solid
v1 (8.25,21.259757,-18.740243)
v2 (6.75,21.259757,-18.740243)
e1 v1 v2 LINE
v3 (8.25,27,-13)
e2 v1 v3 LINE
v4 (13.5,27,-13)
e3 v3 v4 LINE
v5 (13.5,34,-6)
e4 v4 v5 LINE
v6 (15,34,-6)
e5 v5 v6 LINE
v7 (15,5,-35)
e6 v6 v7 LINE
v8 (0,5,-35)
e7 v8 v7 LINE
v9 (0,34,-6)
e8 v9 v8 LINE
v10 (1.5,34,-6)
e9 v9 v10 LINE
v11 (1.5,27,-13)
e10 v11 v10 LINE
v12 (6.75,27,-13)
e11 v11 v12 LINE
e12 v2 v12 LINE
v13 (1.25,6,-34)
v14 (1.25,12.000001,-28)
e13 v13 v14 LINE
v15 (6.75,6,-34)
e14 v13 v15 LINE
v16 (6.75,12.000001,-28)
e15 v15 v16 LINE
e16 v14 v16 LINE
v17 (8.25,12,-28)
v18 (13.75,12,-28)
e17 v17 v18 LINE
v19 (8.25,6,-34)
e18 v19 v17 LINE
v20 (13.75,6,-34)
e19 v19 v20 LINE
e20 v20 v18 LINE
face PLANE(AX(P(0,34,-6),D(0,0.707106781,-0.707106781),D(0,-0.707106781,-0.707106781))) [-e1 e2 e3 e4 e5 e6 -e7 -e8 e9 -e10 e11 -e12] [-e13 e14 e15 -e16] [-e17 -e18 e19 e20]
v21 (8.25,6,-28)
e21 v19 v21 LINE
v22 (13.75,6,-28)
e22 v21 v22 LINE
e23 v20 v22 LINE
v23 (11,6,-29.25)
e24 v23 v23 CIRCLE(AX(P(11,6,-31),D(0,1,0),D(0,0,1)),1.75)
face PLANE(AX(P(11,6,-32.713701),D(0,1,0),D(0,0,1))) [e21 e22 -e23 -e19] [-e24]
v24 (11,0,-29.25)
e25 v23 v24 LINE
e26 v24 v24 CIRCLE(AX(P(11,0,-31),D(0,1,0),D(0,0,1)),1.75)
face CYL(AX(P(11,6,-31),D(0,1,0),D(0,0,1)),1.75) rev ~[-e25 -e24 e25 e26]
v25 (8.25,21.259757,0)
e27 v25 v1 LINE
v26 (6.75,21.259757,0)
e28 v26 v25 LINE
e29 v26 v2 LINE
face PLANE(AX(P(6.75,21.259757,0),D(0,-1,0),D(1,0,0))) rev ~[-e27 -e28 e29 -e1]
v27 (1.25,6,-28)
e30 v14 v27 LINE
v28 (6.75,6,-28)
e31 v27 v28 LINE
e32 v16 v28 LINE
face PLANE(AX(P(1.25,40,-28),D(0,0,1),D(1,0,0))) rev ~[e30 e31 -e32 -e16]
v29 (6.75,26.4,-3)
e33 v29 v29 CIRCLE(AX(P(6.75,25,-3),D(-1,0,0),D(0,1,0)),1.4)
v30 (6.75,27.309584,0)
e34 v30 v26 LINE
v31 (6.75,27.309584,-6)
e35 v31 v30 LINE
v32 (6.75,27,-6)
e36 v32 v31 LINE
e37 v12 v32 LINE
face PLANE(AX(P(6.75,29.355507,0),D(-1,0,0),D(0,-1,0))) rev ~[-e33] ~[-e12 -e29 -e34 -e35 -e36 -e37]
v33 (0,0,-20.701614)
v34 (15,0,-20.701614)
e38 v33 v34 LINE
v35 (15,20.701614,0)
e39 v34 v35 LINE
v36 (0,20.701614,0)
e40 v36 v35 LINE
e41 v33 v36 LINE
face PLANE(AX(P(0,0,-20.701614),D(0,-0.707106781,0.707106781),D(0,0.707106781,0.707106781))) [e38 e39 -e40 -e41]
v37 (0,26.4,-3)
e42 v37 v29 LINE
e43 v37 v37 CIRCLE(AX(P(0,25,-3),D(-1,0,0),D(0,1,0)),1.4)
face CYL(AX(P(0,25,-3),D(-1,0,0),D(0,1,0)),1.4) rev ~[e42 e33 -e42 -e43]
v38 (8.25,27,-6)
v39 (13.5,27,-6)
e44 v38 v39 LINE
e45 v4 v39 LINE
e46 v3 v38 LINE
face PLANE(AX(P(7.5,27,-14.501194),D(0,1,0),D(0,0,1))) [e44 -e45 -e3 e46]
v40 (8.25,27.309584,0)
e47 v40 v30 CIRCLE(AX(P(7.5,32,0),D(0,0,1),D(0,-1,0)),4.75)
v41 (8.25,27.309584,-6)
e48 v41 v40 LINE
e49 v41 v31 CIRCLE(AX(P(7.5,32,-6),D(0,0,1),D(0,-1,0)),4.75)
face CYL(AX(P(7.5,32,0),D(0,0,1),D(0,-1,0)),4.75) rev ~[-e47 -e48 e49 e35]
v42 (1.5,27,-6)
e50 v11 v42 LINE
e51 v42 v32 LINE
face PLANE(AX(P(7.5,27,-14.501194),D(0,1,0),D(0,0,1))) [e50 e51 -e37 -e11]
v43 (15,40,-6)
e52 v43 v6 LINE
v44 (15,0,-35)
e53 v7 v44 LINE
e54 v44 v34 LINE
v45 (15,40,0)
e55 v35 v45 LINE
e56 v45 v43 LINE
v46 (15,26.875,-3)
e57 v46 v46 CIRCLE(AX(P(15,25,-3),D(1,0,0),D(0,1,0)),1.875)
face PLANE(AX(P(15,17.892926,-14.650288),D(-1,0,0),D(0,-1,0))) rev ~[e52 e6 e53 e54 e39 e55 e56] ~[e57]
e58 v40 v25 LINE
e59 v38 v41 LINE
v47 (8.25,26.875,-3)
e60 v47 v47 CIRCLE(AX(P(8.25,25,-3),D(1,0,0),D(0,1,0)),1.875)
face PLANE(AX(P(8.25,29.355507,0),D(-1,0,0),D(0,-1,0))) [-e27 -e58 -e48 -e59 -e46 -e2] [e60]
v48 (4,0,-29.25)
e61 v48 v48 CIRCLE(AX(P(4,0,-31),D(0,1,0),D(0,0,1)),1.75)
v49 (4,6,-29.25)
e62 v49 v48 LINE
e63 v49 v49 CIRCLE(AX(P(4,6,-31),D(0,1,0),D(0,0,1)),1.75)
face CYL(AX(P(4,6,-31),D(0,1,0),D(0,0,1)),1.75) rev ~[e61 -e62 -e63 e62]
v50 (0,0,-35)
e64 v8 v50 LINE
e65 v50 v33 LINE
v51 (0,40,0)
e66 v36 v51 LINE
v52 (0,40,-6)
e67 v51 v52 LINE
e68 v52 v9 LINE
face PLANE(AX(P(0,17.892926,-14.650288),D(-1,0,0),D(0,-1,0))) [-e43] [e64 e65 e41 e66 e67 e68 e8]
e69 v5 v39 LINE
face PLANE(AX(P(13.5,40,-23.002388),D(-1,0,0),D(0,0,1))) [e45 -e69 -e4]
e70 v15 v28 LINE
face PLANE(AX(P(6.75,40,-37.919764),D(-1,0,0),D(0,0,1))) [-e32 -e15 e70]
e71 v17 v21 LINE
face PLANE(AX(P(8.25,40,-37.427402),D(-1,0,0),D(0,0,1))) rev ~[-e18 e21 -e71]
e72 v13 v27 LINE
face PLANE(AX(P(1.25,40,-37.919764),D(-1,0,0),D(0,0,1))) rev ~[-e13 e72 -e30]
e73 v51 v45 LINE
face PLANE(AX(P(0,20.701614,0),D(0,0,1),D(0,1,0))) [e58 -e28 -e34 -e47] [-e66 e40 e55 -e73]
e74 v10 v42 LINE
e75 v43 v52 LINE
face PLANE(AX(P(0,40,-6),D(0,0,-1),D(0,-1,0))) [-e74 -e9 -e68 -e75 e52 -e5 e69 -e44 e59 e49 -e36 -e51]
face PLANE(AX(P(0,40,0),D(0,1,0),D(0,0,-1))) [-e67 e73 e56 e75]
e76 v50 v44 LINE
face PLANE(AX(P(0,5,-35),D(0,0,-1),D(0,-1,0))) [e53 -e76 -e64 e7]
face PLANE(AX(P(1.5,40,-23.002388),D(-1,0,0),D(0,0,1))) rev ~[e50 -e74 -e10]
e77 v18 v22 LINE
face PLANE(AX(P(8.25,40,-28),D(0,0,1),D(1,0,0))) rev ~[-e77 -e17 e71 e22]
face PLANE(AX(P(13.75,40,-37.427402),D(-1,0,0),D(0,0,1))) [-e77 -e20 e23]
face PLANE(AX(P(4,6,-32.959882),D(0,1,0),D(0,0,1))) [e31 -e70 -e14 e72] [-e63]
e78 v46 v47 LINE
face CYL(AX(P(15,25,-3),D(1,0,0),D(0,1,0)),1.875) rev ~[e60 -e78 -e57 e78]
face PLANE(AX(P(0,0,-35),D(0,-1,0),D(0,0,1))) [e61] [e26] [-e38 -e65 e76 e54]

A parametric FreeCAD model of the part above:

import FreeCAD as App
import Part
import Sketcher
Q = App.Units.Quantity


def add_polygon(sketch, points):
    """Adds a closed chain of lines whose ends are joined by coincident constraints."""
    first, n = sketch.GeometryCount, len(points)
    for a, b in zip(points, points[1:] + points[:1]):
        sketch.addGeometry(Part.LineSegment(App.Vector(*a, 0), App.Vector(*b, 0)), False)
    for i in range(n):
        sketch.addConstraint(Sketcher.Constraint("Coincident", first + i, 2, first + (i + 1) % n, 1))

doc = App.newDocument("Part")
body = doc.addObject("PartDesign::Body", "Body")

# Sketch on YZ plane
sketch1 = doc.addObject("Sketcher::SketchObject", "Sketch")
body.addObject(sketch1)
sketch1.AttachmentSupport = (doc.YZ_Plane, [""])
sketch1.MapMode = "FlatFace"
add_polygon(sketch1, [(40, 0), (21, 0), (0, -21), (0, -35), (5, -35), (34, -6), (40, -6)])  # lines 0-6
sketch1.addConstraint([
    Sketcher.Constraint("Horizontal", 0),
    Sketcher.Constraint("Vertical", 2),
    Sketcher.Constraint("Horizontal", 3),
    Sketcher.Constraint("Horizontal", 5),
    Sketcher.Constraint("Vertical", 6),
    Sketcher.Constraint("PointOnObject", 0, 2, -1),
    Sketcher.Constraint("PointOnObject", 1, 2, -2),
    Sketcher.Constraint("Parallel", 1, 4),
    Sketcher.Constraint("Equal", 5, 6),
    Sketcher.Constraint("DistanceX", 3, 1, 3, 2, 5.0),
    Sketcher.Constraint("DistanceX", 5, 1, 5, 2, 6.0),
    Sketcher.Constraint("Angle", 1, Q("-135 deg")),
    Sketcher.Constraint("DistanceY", 2, 2, -1, 1, 35.0),
    Sketcher.Constraint("DistanceX", 0, 2, 0, 1, 19.298386),
])
pad1 = doc.addObject("PartDesign::Pad", "Pad")
body.addObject(pad1)
pad1.Profile = sketch1
pad1.Length = 15

# Sketch on an angled plane
sketch2 = doc.addObject("Sketcher::SketchObject", "Sketch001")
body.addObject(sketch2)
sketch2.Placement = App.Placement(App.Vector(0, 20, -20), App.Rotation(App.Vector(0, 0.707106781, 0.707106781), App.Vector(0.999999999, 0, 0), App.Vector(0, 0.707106781, -0.707106781), "ZXY"))
sketch2.addGeometry(Part.Circle(App.Vector(-32, 7.5, 0), App.Vector(0, 0, 1), 4.7), False)
sketch2.addConstraint([
    Sketcher.Constraint("Diameter", 0, 9.45),
    Sketcher.Constraint("DistanceX", 0, 3, -1, 1, 32.0),
    Sketcher.Constraint("DistanceY", -1, 1, 0, 3, 7.5),
])
pocket1 = doc.addObject("PartDesign::Pocket", "Pocket")
body.addObject(pocket1)
pocket1.Profile = sketch2
pocket1.Type = "ThroughAll"

# Sketch on YZ plane
sketch3 = doc.addObject("Sketcher::SketchObject", "Sketch002")
body.addObject(sketch3)
sketch3.AttachmentSupport = (doc.YZ_Plane, [""])
sketch3.MapMode = "FlatFace"
add_polygon(sketch3, [(-28.6, -8.5), (-28.6, -6.5), (-15.1, -6.5), (-15.1, -8.5)])  # lines 0-3
sketch3.addConstraint([
    Sketcher.Constraint("Vertical", 0),
    Sketcher.Constraint("Horizontal", 1),
    Sketcher.Constraint("Vertical", 2),
    Sketcher.Constraint("Horizontal", 3),
    Sketcher.Constraint("DistanceY", 0, 1, 0, 2, 2.0),
    Sketcher.Constraint("DistanceY", 0, 2, -1, 1, 6.5),
    Sketcher.Constraint("DistanceX", 1, 1, 1, 2, 13.497765),
    Sketcher.Constraint("DistanceX", 1, 2, -1, 1, 15.07364),
])
pocket2 = doc.addObject("PartDesign::Pocket", "Pocket001")
body.addObject(pocket2)
pocket2.Profile = sketch3
pocket2.Type = "ThroughAll"
pocket2.Reversed = True

# Sketch on XZ plane
sketch4 = doc.addObject("Sketcher::SketchObject", "Sketch003")
body.addObject(sketch4)
sketch4.AttachmentSupport = (doc.XZ_Plane, [""])
sketch4.MapMode = "FlatFace"
sketch4.AttachmentOffset = App.Placement(App.Vector(0, 0, -40), App.Rotation())
add_polygon(sketch4, [(7, -38), (1, -38), (1, -28), (7, -28)])  # lines 0-3
add_polygon(sketch4, [(14, -37), (8, -37), (8, -28), (14, -28)])  # lines 4-7
sketch4.addConstraint([
    Sketcher.Constraint("Horizontal", 0),
    Sketcher.Constraint("Vertical", 1),
    Sketcher.Constraint("Horizontal", 2),
    Sketcher.Constraint("Vertical", 3),
    Sketcher.Constraint("Horizontal", 4),
    Sketcher.Constraint("Vertical", 5),
    Sketcher.Constraint("Horizontal", 6),
    Sketcher.Constraint("Vertical", 7),
    Sketcher.Constraint("Horizontal", 2, 2, 5, 2),
    Sketcher.Constraint("Equal", 2, 4),
    Sketcher.Constraint("DistanceX", 0, 2, 0, 1, 5.5),
    Sketcher.Constraint("DistanceY", 1, 2, -1, 1, 28.0),
    Sketcher.Constraint("DistanceX", 0, 2, 4, 2, 7.0),
    Sketcher.Constraint("DistanceX", -1, 1, 0, 2, 1.25),
    Sketcher.Constraint("DistanceY", 1, 1, 1, 2, 9.919765),
    Sketcher.Constraint("DistanceY", 5, 1, 5, 2, 9.427402),
])
pocket3 = doc.addObject("PartDesign::Pocket", "Pocket002")
body.addObject(pocket3)
pocket3.Profile = sketch4
pocket3.Length = 34
pocket3.Reversed = True

# Sketch on XZ plane
sketch5 = doc.addObject("Sketcher::SketchObject", "Sketch004")
body.addObject(sketch5)
sketch5.AttachmentSupport = (doc.XZ_Plane, [""])
sketch5.MapMode = "FlatFace"
sketch5.AttachmentOffset = App.Placement(App.Vector(0, 0, -40), App.Rotation())
add_polygon(sketch5, [(14, -23), (2, -23), (2, -6), (14, -6)])  # lines 0-3
sketch5.addConstraint([
    Sketcher.Constraint("Horizontal", 0),
    Sketcher.Constraint("Vertical", 1),
    Sketcher.Constraint("Horizontal", 2),
    Sketcher.Constraint("Vertical", 3),
    Sketcher.Constraint("DistanceX", 0, 2, 0, 1, 12.0),
    Sketcher.Constraint("DistanceY", 1, 2, -1, 1, 6.0),
    Sketcher.Constraint("DistanceX", -1, 1, 0, 2, 1.5),
    Sketcher.Constraint("DistanceY", 1, 1, 1, 2, 17.002388),
])
pocket4 = doc.addObject("PartDesign::Pocket", "Pocket003")
body.addObject(pocket4)
pocket4.Profile = sketch5
pocket4.Length = 13
pocket4.Reversed = True

# Sketch on XY plane
sketch6 = doc.addObject("Sketcher::SketchObject", "Sketch005")
body.addObject(sketch6)
sketch6.AttachmentSupport = (doc.XY_Plane, [""])
sketch6.MapMode = "FlatFace"
sketch6.addGeometry(Part.Circle(App.Vector(7.5, 32, 0), App.Vector(0, 0, 1), 4.8), False)
sketch6.addConstraint([
    Sketcher.Constraint("Diameter", 0, 9.5),
    Sketcher.Constraint("DistanceY", -1, 1, 0, 3, 32.0),
    Sketcher.Constraint("DistanceX", -1, 1, 0, 3, 7.5),
])
pocket5 = doc.addObject("PartDesign::Pocket", "Pocket004")
body.addObject(pocket5)
pocket5.Profile = sketch6
pocket5.Type = "ThroughAll"

# Sketch on XY plane
sketch7 = doc.addObject("Sketcher::SketchObject", "Sketch006")
body.addObject(sketch7)
sketch7.AttachmentSupport = (doc.XY_Plane, [""])
sketch7.MapMode = "FlatFace"
add_polygon(sketch7, [(8.2, 29.4), (6.8, 29.4), (6.8, 21.3), (8.2, 21.3)])  # lines 0-3
sketch7.addConstraint([
    Sketcher.Constraint("Horizontal", 0),
    Sketcher.Constraint("Vertical", 1),
    Sketcher.Constraint("Horizontal", 2),
    Sketcher.Constraint("Vertical", 3),
    Sketcher.Constraint("DistanceX", 0, 2, 0, 1, 1.5),
    Sketcher.Constraint("DistanceX", -1, 1, 0, 2, 6.75),
    Sketcher.Constraint("DistanceY", 1, 2, 1, 1, 8.09575),
    Sketcher.Constraint("DistanceY", -1, 1, 0, 2, 29.355507),
])
pocket6 = doc.addObject("PartDesign::Pocket", "Pocket005")
body.addObject(pocket6)
pocket6.Profile = sketch7
pocket6.Type = "ThroughAll"

# Sketch on YZ plane
sketch8 = doc.addObject("Sketcher::SketchObject", "Sketch007")
body.addObject(sketch8)
sketch8.AttachmentSupport = (doc.YZ_Plane, [""])
sketch8.MapMode = "FlatFace"
sketch8.addGeometry(Part.Circle(App.Vector(25, -3, 0), App.Vector(0, 0, 1), 1.4), False)
sketch8.addConstraint([
    Sketcher.Constraint("Diameter", 0, 2.8),
    Sketcher.Constraint("DistanceX", -1, 1, 0, 3, 25.0),
    Sketcher.Constraint("DistanceY", 0, 3, -1, 1, 3.0),
])
pocket7 = doc.addObject("PartDesign::Pocket", "Pocket006")
body.addObject(pocket7)
pocket7.Profile = sketch8
pocket7.Type = "ThroughAll"
pocket7.Reversed = True

# Sketch on YZ plane
sketch9 = doc.addObject("Sketcher::SketchObject", "Sketch008")
body.addObject(sketch9)
sketch9.AttachmentSupport = (doc.YZ_Plane, [""])
sketch9.MapMode = "FlatFace"
sketch9.addGeometry(Part.Circle(App.Vector(25, -3, 0), App.Vector(0, 0, 1), 1.4), False)
sketch9.addConstraint([
    Sketcher.Constraint("Diameter", 0, 2.8),
    Sketcher.Constraint("DistanceX", -1, 1, 0, 3, 25.0),
    Sketcher.Constraint("DistanceY", 0, 3, -1, 1, 3.0),
])
pocket8 = doc.addObject("PartDesign::Pocket", "Pocket007")
body.addObject(pocket8)
pocket8.Profile = sketch9
pocket8.Length = 8
pocket8.Reversed = True

# Sketch on XZ plane
sketch10 = doc.addObject("Sketcher::SketchObject", "Sketch009")
body.addObject(sketch10)
sketch10.AttachmentSupport = (doc.XZ_Plane, [""])
sketch10.MapMode = "FlatFace"
sketch10.AttachmentOffset = App.Placement(App.Vector(0, 0, -6), App.Rotation())
sketch10.addGeometry([
    Part.Circle(App.Vector(11, -31, 0), App.Vector(0, 0, 1), 1.8),
    Part.Circle(App.Vector(4, -31, 0), App.Vector(0, 0, 1), 1.8),
], False)
sketch10.addConstraint([
    Sketcher.Constraint("Equal", 0, 1),
    Sketcher.Constraint("Horizontal", 0, 3, 1, 3),
    Sketcher.Constraint("Diameter", 0, 3.5),
    Sketcher.Constraint("DistanceX", -1, 1, 0, 3, 11.0),
    Sketcher.Constraint("DistanceY", 0, 3, -1, 1, 31.0),
    Sketcher.Constraint("DistanceX", -1, 1, 1, 3, 4.0),
])
pocket9 = doc.addObject("PartDesign::Pocket", "Pocket008")
body.addObject(pocket9)
pocket9.Profile = sketch10
pocket9.Type = "ThroughAll"
pocket9.Reversed = True

# Sketch on YZ plane
sketch11 = doc.addObject("Sketcher::SketchObject", "Sketch010")
body.addObject(sketch11)
sketch11.AttachmentSupport = (doc.YZ_Plane, [""])
sketch11.MapMode = "FlatFace"
sketch11.AttachmentOffset = App.Placement(App.Vector(0, 0, 15), App.Rotation())
sketch11.addGeometry(Part.Circle(App.Vector(25, -3, 0), App.Vector(0, 0, 1), 1.9), False)
sketch11.addConstraint([
    Sketcher.Constraint("Diameter", 0, 3.75),
    Sketcher.Constraint("DistanceX", -1, 1, 0, 3, 25.0),
    Sketcher.Constraint("DistanceY", 0, 3, -1, 1, 3.0),
])
pocket10 = doc.addObject("PartDesign::Pocket", "Pocket009")
body.addObject(pocket10)
pocket10.Profile = sketch11
pocket10.Length = 8

doc.recompute()
